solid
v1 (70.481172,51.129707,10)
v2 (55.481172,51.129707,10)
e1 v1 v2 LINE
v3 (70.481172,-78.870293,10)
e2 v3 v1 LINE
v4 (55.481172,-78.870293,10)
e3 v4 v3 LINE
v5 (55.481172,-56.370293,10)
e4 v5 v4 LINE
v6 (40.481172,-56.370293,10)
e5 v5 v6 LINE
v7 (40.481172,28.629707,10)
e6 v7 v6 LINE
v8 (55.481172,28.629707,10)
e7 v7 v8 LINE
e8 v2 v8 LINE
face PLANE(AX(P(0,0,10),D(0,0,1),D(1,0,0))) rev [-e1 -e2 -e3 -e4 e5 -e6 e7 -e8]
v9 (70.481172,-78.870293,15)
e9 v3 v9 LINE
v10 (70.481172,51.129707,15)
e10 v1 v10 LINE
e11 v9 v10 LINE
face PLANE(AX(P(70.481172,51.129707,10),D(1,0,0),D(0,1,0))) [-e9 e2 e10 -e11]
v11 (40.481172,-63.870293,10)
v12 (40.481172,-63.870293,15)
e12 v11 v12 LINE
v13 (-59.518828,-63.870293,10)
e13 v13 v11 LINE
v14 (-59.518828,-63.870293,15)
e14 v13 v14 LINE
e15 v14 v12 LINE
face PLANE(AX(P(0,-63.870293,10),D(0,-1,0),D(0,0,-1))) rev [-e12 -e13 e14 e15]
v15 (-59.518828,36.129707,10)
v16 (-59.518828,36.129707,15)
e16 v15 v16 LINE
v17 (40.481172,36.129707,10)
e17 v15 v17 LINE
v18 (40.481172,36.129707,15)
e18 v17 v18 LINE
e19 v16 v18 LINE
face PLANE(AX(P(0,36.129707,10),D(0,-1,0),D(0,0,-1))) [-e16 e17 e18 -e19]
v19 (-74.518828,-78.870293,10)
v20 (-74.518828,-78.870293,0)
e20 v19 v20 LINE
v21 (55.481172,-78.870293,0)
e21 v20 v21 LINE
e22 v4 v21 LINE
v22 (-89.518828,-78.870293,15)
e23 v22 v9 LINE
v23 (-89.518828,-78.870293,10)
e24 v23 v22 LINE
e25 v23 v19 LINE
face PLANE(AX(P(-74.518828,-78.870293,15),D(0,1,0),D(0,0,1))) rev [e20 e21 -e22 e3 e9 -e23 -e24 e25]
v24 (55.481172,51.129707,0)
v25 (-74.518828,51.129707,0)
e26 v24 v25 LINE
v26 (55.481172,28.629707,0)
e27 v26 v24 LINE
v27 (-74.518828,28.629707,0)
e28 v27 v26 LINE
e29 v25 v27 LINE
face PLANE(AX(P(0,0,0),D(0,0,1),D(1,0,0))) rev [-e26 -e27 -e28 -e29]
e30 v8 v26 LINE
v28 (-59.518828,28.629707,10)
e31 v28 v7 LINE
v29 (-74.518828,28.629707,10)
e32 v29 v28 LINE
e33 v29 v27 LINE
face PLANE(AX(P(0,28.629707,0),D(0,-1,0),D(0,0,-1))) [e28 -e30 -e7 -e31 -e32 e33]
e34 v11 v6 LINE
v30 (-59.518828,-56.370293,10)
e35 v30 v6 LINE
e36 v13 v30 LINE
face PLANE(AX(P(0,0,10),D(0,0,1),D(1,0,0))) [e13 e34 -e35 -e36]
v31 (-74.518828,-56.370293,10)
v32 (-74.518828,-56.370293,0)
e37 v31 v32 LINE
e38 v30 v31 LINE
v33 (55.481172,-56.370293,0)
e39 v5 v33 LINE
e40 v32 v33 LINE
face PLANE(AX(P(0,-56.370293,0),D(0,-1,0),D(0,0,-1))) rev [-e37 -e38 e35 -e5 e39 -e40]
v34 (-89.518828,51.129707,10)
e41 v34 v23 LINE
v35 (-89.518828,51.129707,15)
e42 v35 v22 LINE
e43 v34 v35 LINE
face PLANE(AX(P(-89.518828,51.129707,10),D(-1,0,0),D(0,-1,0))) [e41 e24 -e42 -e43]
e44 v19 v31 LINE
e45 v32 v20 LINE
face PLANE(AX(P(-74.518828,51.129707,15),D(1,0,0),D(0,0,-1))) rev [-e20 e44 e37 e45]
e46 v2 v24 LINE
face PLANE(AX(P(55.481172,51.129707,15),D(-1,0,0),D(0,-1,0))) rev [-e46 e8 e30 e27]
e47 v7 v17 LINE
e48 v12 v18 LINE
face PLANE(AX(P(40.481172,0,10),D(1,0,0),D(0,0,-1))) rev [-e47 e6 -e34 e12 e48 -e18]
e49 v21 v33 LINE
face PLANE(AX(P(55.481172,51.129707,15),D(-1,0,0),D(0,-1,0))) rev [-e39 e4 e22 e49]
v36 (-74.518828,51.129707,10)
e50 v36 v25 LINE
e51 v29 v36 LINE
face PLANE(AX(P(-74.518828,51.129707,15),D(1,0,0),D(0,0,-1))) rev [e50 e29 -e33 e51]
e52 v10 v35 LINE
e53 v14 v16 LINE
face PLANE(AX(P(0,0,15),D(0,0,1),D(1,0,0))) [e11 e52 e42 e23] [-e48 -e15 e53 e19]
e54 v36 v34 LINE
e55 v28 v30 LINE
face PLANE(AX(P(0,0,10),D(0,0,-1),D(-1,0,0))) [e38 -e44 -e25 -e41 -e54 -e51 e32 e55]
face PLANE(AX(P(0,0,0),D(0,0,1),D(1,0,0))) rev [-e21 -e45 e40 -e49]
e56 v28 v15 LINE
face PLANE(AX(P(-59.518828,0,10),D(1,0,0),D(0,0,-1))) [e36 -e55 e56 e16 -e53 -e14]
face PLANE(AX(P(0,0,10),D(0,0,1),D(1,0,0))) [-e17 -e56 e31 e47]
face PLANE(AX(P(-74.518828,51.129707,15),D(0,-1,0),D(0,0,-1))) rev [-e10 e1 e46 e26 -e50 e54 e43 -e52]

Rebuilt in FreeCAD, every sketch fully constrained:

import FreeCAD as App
import Part
import Sketcher

V = App.Vector
Q = App.Units.Quantity

doc = App.newDocument("Part")
params = doc.addObject("Spreadsheet::Sheet", "Params")
for row, (alias, value) in enumerate([
    ("sketch1_width", "130 mm"),
    ("pad1_length", "15 mm"),
    ("sketch2_width", "15 mm"),
    ("sketch2_height", "130 mm"),
    ("pad2_length", "5 mm"),
    ("sketch3_width", "100 mm"),
    ("pocket1_length", "5 mm"),
    ("sketch4_width", "76 mm"),
    ("sketch4_height", "85 mm"),
    ("sketch5_width", "27 mm"),
    ("sketch5_height", "85 mm"),
    ("pocket3_length", "10 mm"),
], start=1):
    params.set(f"A{row}", alias)
    params.set(f"B{row}", "=" + value)
    params.setAlias(f"B{row}", alias)

body = doc.addObject("PartDesign::Body", "Body")

sketch1 = doc.addObject("Sketcher::SketchObject", "Sketch")
body.addObject(sketch1)
sketch1.AttachmentSupport = (doc.XY_Plane, [""])
sketch1.MapMode = "FlatFace"
sketch1.addGeometry(Part.LineSegment(V(-75, 51, 0), V(-75, -79, 0)), False)
sketch1.addGeometry(Part.LineSegment(V(-75, -79, 0), V(55, -79, 0)), False)
sketch1.addGeometry(Part.LineSegment(V(55, -79, 0), V(55, 51, 0)), False)
sketch1.addGeometry(Part.LineSegment(V(55, 51, 0), V(-75, 51, 0)), False)
sketch1.addConstraint(Sketcher.Constraint("Coincident", 0, 2, 1, 1))
sketch1.addConstraint(Sketcher.Constraint("Coincident", 1, 2, 2, 1))
sketch1.addConstraint(Sketcher.Constraint("Coincident", 2, 2, 3, 1))
sketch1.addConstraint(Sketcher.Constraint("Coincident", 3, 2, 0, 1))
sketch1.addConstraint(Sketcher.Constraint("Vertical", 0))
sketch1.addConstraint(Sketcher.Constraint("Horizontal", 1))
sketch1.addConstraint(Sketcher.Constraint("Vertical", 2))
sketch1.addConstraint(Sketcher.Constraint("Horizontal", 3))
sketch1.addConstraint(Sketcher.Constraint("Equal", 3, 0))
sketch1.addConstraint(Sketcher.Constraint("DistanceX", 1, 1, 1, 2, Q("130 mm")))
sketch1.addConstraint(Sketcher.Constraint("DistanceX", 0, 2, -1, 1, Q("74.518828 mm")))
sketch1.addConstraint(Sketcher.Constraint("DistanceY", 0, 2, -1, 1, Q("78.870293 mm")))
sketch1.setExpression("Constraints[9]", "Params.sketch1_width")
pad1 = doc.addObject("PartDesign::Pad", "Pad")
body.addObject(pad1)
pad1.Profile = sketch1
pad1.setExpression("Length", "Params.pad1_length")

sketch2 = doc.addObject("Sketcher::SketchObject", "Sketch001")
body.addObject(sketch2)
sketch2.AttachmentSupport = (doc.XY_Plane, [""])
sketch2.MapMode = "FlatFace"
sketch2.AttachmentOffset = App.Placement(V(0, 0, 15), App.Rotation())
sketch2.addGeometry(Part.LineSegment(V(55, 51, 0), V(55, -79, 0)), False)
sketch2.addGeometry(Part.LineSegment(V(55, -79, 0), V(70, -79, 0)), False)
sketch2.addGeometry(Part.LineSegment(V(70, -79, 0), V(70, 51, 0)), False)
sketch2.addGeometry(Part.LineSegment(V(70, 51, 0), V(55, 51, 0)), False)
sketch2.addGeometry(Part.LineSegment(V(-90, 51, 0), V(-90, -79, 0)), False)
sketch2.addGeometry(Part.LineSegment(V(-90, -79, 0), V(-75, -79, 0)), False)
sketch2.addGeometry(Part.LineSegment(V(-75, -79, 0), V(-75, 51, 0)), False)
sketch2.addGeometry(Part.LineSegment(V(-75, 51, 0), V(-90, 51, 0)), False)
sketch2.addConstraint(Sketcher.Constraint("Coincident", 0, 2, 1, 1))
sketch2.addConstraint(Sketcher.Constraint("Coincident", 1, 2, 2, 1))
sketch2.addConstraint(Sketcher.Constraint("Coincident", 2, 2, 3, 1))
sketch2.addConstraint(Sketcher.Constraint("Coincident", 3, 2, 0, 1))
sketch2.addConstraint(Sketcher.Constraint("Coincident", 4, 2, 5, 1))
sketch2.addConstraint(Sketcher.Constraint("Coincident", 5, 2, 6, 1))
sketch2.addConstraint(Sketcher.Constraint("Coincident", 6, 2, 7, 1))
sketch2.addConstraint(Sketcher.Constraint("Coincident", 7, 2, 4, 1))
sketch2.addConstraint(Sketcher.Constraint("Vertical", 0))
sketch2.addConstraint(Sketcher.Constraint("Horizontal", 1))
sketch2.addConstraint(Sketcher.Constraint("Vertical", 2))
sketch2.addConstraint(Sketcher.Constraint("Horizontal", 3))
sketch2.addConstraint(Sketcher.Constraint("Vertical", 4))
sketch2.addConstraint(Sketcher.Constraint("Horizontal", 5))
sketch2.addConstraint(Sketcher.Constraint("Vertical", 6))
sketch2.addConstraint(Sketcher.Constraint("Horizontal", 7))
sketch2.addConstraint(Sketcher.Constraint("Horizontal", 1, 2, 4, 2))
sketch2.addConstraint(Sketcher.Constraint("Horizontal", 3, 2, 6, 2))
sketch2.addConstraint(Sketcher.Constraint("Equal", 3, 5))
sketch2.addConstraint(Sketcher.Constraint("DistanceX", 1, 1, 1, 2, Q("15 mm")))
sketch2.addConstraint(Sketcher.Constraint("DistanceY", 0, 2, 0, 1, Q("130 mm")))
sketch2.addConstraint(Sketcher.Constraint("DistanceX", 4, 2, 0, 2, Q("145 mm")))
sketch2.addConstraint(Sketcher.Constraint("DistanceX", -1, 1, 0, 2, Q("55.481172 mm")))
sketch2.addConstraint(Sketcher.Constraint("DistanceY", 0, 2, -1, 1, Q("78.870293 mm")))
sketch2.setExpression("Constraints[19]", "Params.sketch2_width")
sketch2.setExpression("Constraints[20]", "Params.sketch2_height")
pad2 = doc.addObject("PartDesign::Pad", "Pad001")
body.addObject(pad2)
pad2.Profile = sketch2
pad2.setExpression("Length", "Params.pad2_length")
pad2.Reversed = True

sketch3 = doc.addObject("Sketcher::SketchObject", "Sketch002")
body.addObject(sketch3)
sketch3.AttachmentSupport = (doc.XY_Plane, [""])
sketch3.MapMode = "FlatFace"
sketch3.AttachmentOffset = App.Placement(V(0, 0, 15), App.Rotation())
sketch3.addGeometry(Part.LineSegment(V(40, 36, 0), V(-60, 36, 0)), False)
sketch3.addGeometry(Part.LineSegment(V(-60, 36, 0), V(-60, -64, 0)), False)
sketch3.addGeometry(Part.LineSegment(V(-60, -64, 0), V(40, -64, 0)), False)
sketch3.addGeometry(Part.LineSegment(V(40, -64, 0), V(40, 36, 0)), False)
sketch3.addConstraint(Sketcher.Constraint("Coincident", 0, 2, 1, 1))
sketch3.addConstraint(Sketcher.Constraint("Coincident", 1, 2, 2, 1))
sketch3.addConstraint(Sketcher.Constraint("Coincident", 2, 2, 3, 1))
sketch3.addConstraint(Sketcher.Constraint("Coincident", 3, 2, 0, 1))
sketch3.addConstraint(Sketcher.Constraint("Horizontal", 0))
sketch3.addConstraint(Sketcher.Constraint("Vertical", 1))
sketch3.addConstraint(Sketcher.Constraint("Horizontal", 2))
sketch3.addConstraint(Sketcher.Constraint("Vertical", 3))
sketch3.addConstraint(Sketcher.Constraint("Equal", 2, 1))
sketch3.addConstraint(Sketcher.Constraint("DistanceX", 0, 2, 0, 1, Q("100 mm")))
sketch3.addConstraint(Sketcher.Constraint("DistanceX", 0, 2, -1, 1, Q("59.518828 mm")))
sketch3.addConstraint(Sketcher.Constraint("DistanceY", -1, 1, 0, 2, Q("36.129707 mm")))
sketch3.setExpression("Constraints[9]", "Params.sketch3_width")
pocket1 = doc.addObject("PartDesign::Pocket", "Pocket")
body.addObject(pocket1)
pocket1.Profile = sketch3
pocket1.setExpression("Length", "Params.pocket1_length")

sketch4 = doc.addObject("Sketcher::SketchObject", "Sketch003")
body.addObject(sketch4)
sketch4.AttachmentSupport = (doc.XY_Plane, [""])
sketch4.MapMode = "FlatFace"
sketch4.AttachmentOffset = App.Placement(V(0, 0, 10), App.Rotation())
sketch4.addGeometry(Part.LineSegment(V(28, 29, 0), V(-48, 29, 0)), False)
sketch4.addGeometry(Part.LineSegment(V(-48, 29, 0), V(-48, -56, 0)), False)
sketch4.addGeometry(Part.LineSegment(V(-48, -56, 0), V(28, -56, 0)), False)
sketch4.addGeometry(Part.LineSegment(V(28, -56, 0), V(28, 29, 0)), False)
sketch4.addConstraint(Sketcher.Constraint("Coincident", 0, 2, 1, 1))
sketch4.addConstraint(Sketcher.Constraint("Coincident", 1, 2, 2, 1))
sketch4.addConstraint(Sketcher.Constraint("Coincident", 2, 2, 3, 1))
sketch4.addConstraint(Sketcher.Constraint("Coincident", 3, 2, 0, 1))
sketch4.addConstraint(Sketcher.Constraint("Horizontal", 0))
sketch4.addConstraint(Sketcher.Constraint("Vertical", 1))
sketch4.addConstraint(Sketcher.Constraint("Horizontal", 2))
sketch4.addConstraint(Sketcher.Constraint("Vertical", 3))
sketch4.addConstraint(Sketcher.Constraint("DistanceX", 0, 2, 0, 1, Q("76 mm")))
sketch4.addConstraint(Sketcher.Constraint("DistanceY", 1, 2, 1, 1, Q("85 mm")))
sketch4.addConstraint(Sketcher.Constraint("DistanceX", 0, 2, -1, 1, Q("47.518828 mm")))
sketch4.addConstraint(Sketcher.Constraint("DistanceY", -1, 1, 0, 2, Q("28.629707 mm")))
sketch4.setExpression("Constraints[8]", "Params.sketch4_width")
sketch4.setExpression("Constraints[9]", "Params.sketch4_height")
pocket2 = doc.addObject("PartDesign::Pocket", "Pocket001")
body.addObject(pocket2)
pocket2.Profile = sketch4
pocket2.Type = "ThroughAll"

sketch5 = doc.addObject("Sketcher::SketchObject", "Sketch004")
body.addObject(sketch5)
sketch5.AttachmentSupport = (doc.XY_Plane, [""])
sketch5.MapMode = "FlatFace"
sketch5.addGeometry(Part.LineSegment(V(-48, 29, 0), V(-48, -56, 0)), False)
sketch5.addGeometry(Part.LineSegment(V(-48, -56, 0), V(-75, -56, 0)), False)
sketch5.addGeometry(Part.LineSegment(V(-75, -56, 0), V(-75, 29, 0)), False)
sketch5.addGeometry(Part.LineSegment(V(-75, 29, 0), V(-48, 29, 0)), False)
sketch5.addGeometry(Part.LineSegment(V(55, 29, 0), V(55, -56, 0)), False)
sketch5.addGeometry(Part.LineSegment(V(55, -56, 0), V(28, -56, 0)), False)
sketch5.addGeometry(Part.LineSegment(V(28, -56, 0), V(28, 29, 0)), False)
sketch5.addGeometry(Part.LineSegment(V(28, 29, 0), V(55, 29, 0)), False)
sketch5.addConstraint(Sketcher.Constraint("Coincident", 0, 2, 1, 1))
sketch5.addConstraint(Sketcher.Constraint("Coincident", 1, 2, 2, 1))
sketch5.addConstraint(Sketcher.Constraint("Coincident", 2, 2, 3, 1))
sketch5.addConstraint(Sketcher.Constraint("Coincident", 3, 2, 0, 1))
sketch5.addConstraint(Sketcher.Constraint("Coincident", 4, 2, 5, 1))
sketch5.addConstraint(Sketcher.Constraint("Coincident", 5, 2, 6, 1))
sketch5.addConstraint(Sketcher.Constraint("Coincident", 6, 2, 7, 1))
sketch5.addConstraint(Sketcher.Constraint("Coincident", 7, 2, 4, 1))
sketch5.addConstraint(Sketcher.Constraint("Vertical", 0))
sketch5.addConstraint(Sketcher.Constraint("Horizontal", 1))
sketch5.addConstraint(Sketcher.Constraint("Vertical", 2))
sketch5.addConstraint(Sketcher.Constraint("Horizontal", 3))
sketch5.addConstraint(Sketcher.Constraint("Vertical", 4))
sketch5.addConstraint(Sketcher.Constraint("Horizontal", 5))
sketch5.addConstraint(Sketcher.Constraint("Vertical", 6))
sketch5.addConstraint(Sketcher.Constraint("Horizontal", 7))
sketch5.addConstraint(Sketcher.Constraint("Horizontal", 1, 2, 4, 2))
sketch5.addConstraint(Sketcher.Constraint("Horizontal", 3, 2, 6, 2))
sketch5.addConstraint(Sketcher.Constraint("Equal", 3, 5))
sketch5.addConstraint(Sketcher.Constraint("DistanceX", 1, 2, 1, 1, Q("27 mm")))
sketch5.addConstraint(Sketcher.Constraint("DistanceY", 0, 2, 0, 1, Q("85 mm")))
sketch5.addConstraint(Sketcher.Constraint("DistanceX", 0, 2, 4, 2, Q("103 mm")))
sketch5.addConstraint(Sketcher.Constraint("DistanceX", 0, 2, -1, 1, Q("47.518828 mm")))
sketch5.addConstraint(Sketcher.Constraint("DistanceY", 0, 2, -1, 1, Q("56.370293 mm")))
sketch5.setExpression("Constraints[19]", "Params.sketch5_width")
sketch5.setExpression("Constraints[20]", "Params.sketch5_height")
pocket3 = doc.addObject("PartDesign::Pocket", "Pocket002")
body.addObject(pocket3)
pocket3.Profile = sketch5
pocket3.setExpression("Length", "Params.pocket3_length")
pocket3.Reversed = True

doc.recompute()
